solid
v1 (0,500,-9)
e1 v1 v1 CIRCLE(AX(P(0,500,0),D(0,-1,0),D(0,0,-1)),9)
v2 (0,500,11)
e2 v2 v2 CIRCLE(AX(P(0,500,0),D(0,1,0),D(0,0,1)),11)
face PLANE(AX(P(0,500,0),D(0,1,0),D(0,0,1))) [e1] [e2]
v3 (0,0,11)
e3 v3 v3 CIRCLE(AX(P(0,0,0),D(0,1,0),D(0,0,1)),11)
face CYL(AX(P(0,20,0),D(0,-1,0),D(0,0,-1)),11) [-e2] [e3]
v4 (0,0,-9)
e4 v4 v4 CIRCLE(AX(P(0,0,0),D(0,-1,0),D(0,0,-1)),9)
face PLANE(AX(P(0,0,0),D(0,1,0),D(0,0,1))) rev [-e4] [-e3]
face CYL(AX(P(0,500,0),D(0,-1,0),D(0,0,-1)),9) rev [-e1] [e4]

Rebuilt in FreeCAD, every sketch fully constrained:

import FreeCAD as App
import Part
import Sketcher

doc = App.newDocument("Part")
body = doc.addObject("PartDesign::Body", "Body")

sketch1 = body.newObject("Sketcher::SketchObject", "Sketch")
sketch1.AttachmentSupport = (doc.getObject("XZ_Plane"), [""])
sketch1.MapMode = "FlatFace"
sketch1.addGeometry(Part.Circle(App.Vector(0, 0, 0), App.Vector(0, 0, 1), 11), False)
sketch1.addConstraint([
    Sketcher.Constraint("Coincident", 0, 3, -1, 1),
    Sketcher.Constraint("Diameter", 0, 22.0),
])
pad1 = body.newObject("PartDesign::Pad", "Pad")
pad1.Profile = sketch1
pad1.Length = 20
pad1.Reversed = True

sketch2 = body.newObject("Sketcher::SketchObject", "Sketch001")
sketch2.AttachmentSupport = (doc.getObject("XZ_Plane"), [""])
sketch2.MapMode = "FlatFace"
sketch2.AttachmentOffset = App.Placement(App.Vector(0, 0, -20), App.Rotation())
sketch2.addGeometry(Part.Circle(App.Vector(0, 0, 0), App.Vector(0, 0, 1), 11), False)
sketch2.addConstraint([
    Sketcher.Constraint("Coincident", 0, 3, -1, 1),
    Sketcher.Constraint("Diameter", 0, 22.0),
])
pad2 = body.newObject("PartDesign::Pad", "Pad001")
pad2.Profile = sketch2
pad2.Length = 480
pad2.Reversed = True

sketch3 = body.newObject("Sketcher::SketchObject", "Sketch002")
sketch3.AttachmentSupport = (doc.getObject("XZ_Plane"), [""])
sketch3.MapMode = "FlatFace"
sketch3.addGeometry(Part.Circle(App.Vector(0, 0, 0), App.Vector(0, 0, 1), 9), False)
sketch3.addConstraint([
    Sketcher.Constraint("Coincident", 0, 3, -1, 1),
    Sketcher.Constraint("Diameter", 0, 18.0),
])
pocket1 = body.newObject("PartDesign::Pocket", "Pocket")
pocket1.Profile = sketch3
pocket1.Type = "ThroughAll"

doc.recompute()
